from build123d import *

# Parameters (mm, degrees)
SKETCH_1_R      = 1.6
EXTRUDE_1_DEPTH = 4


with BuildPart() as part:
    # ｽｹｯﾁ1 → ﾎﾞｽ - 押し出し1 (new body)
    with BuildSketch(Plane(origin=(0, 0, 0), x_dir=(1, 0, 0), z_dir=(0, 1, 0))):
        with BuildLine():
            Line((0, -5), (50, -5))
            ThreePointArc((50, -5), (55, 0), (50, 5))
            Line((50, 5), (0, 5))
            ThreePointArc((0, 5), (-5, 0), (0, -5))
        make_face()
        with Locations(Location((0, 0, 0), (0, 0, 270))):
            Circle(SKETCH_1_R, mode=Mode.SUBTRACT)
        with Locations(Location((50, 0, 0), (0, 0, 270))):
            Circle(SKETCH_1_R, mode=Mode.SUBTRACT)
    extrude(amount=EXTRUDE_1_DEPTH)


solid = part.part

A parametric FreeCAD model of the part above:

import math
import FreeCAD as App
import Part
import Sketcher
from FreeCAD import Vector

doc = App.newDocument("Part")
params = doc.addObject("Spreadsheet::Sheet", "Params")
for row, (alias, value) in enumerate([
    ("sketch1_radius", "5 mm"),
    ("sketch1_diameter", "3.2 mm"),
    ("sketch1_width", "50 mm"),
    ("pad1_length", "4 mm"),
], start=1):
    params.set(f"A{row}", alias)
    params.set(f"B{row}", "=" + value)
    params.setAlias(f"B{row}", alias)

body = doc.addObject("PartDesign::Body", "Body")

sketch1 = body.newObject("Sketcher::SketchObject", "Sketch")
sketch1.AttachmentSupport = (doc.getObject("XZ_Plane"), [""])
sketch1.MapMode = "FlatFace"
sketch1.addGeometry([
    Part.LineSegment(Vector(0, 5, 0), Vector(50, 5, 0)),
    Part.ArcOfCircle(Part.Circle(Vector(50, 0, 0), Vector(0, 0, 1), 5), math.radians(-90), math.radians(90)),
    Part.LineSegment(Vector(50, -5, 0), Vector(0, -5, 0)),
    Part.ArcOfCircle(Part.Circle(Vector(0, 0, 0), Vector(0, 0, 1), 5), math.radians(90), math.radians(270)),
    Part.Circle(Vector(0, 0, 0), Vector(0, 0, 1), 1.6),
    Part.Circle(Vector(50, 0, 0), Vector(0, 0, 1), 1.6),
], False)
sketch1.addConstraint([
    Sketcher.Constraint("Tangent", 0, 2, 1, 2),
    Sketcher.Constraint("Tangent", 1, 1, 2, 1),
    Sketcher.Constraint("Tangent", 2, 2, 3, 2),
    Sketcher.Constraint("Tangent", 3, 1, 0, 1),
    Sketcher.Constraint("Horizontal", 0),
    Sketcher.Constraint("Horizontal", 2),
    Sketcher.Constraint("Coincident", 3, 3, -1, 1),
    Sketcher.Constraint("Coincident", 4, 3, -1, 1),
    Sketcher.Constraint("Coincident", 5, 3, 1, 3),
    Sketcher.Constraint("Equal", 4, 5),
    Sketcher.Constraint("Radius", 1, 5.0),
    Sketcher.Constraint("Diameter", 4, 3.2),
    Sketcher.Constraint("DistanceX", 0, 1, 0, 2, 50.0),
])
sketch1.setExpression("Constraints[10]", "Params.sketch1_radius")
sketch1.setExpression("Constraints[11]", "Params.sketch1_diameter")
sketch1.setExpression("Constraints[12]", "Params.sketch1_width")
pad1 = body.newObject("PartDesign::Pad", "Pad")
pad1.Profile = sketch1
pad1.setExpression("Length", "Params.pad1_length")
pad1.Reversed = True

doc.recompute()
